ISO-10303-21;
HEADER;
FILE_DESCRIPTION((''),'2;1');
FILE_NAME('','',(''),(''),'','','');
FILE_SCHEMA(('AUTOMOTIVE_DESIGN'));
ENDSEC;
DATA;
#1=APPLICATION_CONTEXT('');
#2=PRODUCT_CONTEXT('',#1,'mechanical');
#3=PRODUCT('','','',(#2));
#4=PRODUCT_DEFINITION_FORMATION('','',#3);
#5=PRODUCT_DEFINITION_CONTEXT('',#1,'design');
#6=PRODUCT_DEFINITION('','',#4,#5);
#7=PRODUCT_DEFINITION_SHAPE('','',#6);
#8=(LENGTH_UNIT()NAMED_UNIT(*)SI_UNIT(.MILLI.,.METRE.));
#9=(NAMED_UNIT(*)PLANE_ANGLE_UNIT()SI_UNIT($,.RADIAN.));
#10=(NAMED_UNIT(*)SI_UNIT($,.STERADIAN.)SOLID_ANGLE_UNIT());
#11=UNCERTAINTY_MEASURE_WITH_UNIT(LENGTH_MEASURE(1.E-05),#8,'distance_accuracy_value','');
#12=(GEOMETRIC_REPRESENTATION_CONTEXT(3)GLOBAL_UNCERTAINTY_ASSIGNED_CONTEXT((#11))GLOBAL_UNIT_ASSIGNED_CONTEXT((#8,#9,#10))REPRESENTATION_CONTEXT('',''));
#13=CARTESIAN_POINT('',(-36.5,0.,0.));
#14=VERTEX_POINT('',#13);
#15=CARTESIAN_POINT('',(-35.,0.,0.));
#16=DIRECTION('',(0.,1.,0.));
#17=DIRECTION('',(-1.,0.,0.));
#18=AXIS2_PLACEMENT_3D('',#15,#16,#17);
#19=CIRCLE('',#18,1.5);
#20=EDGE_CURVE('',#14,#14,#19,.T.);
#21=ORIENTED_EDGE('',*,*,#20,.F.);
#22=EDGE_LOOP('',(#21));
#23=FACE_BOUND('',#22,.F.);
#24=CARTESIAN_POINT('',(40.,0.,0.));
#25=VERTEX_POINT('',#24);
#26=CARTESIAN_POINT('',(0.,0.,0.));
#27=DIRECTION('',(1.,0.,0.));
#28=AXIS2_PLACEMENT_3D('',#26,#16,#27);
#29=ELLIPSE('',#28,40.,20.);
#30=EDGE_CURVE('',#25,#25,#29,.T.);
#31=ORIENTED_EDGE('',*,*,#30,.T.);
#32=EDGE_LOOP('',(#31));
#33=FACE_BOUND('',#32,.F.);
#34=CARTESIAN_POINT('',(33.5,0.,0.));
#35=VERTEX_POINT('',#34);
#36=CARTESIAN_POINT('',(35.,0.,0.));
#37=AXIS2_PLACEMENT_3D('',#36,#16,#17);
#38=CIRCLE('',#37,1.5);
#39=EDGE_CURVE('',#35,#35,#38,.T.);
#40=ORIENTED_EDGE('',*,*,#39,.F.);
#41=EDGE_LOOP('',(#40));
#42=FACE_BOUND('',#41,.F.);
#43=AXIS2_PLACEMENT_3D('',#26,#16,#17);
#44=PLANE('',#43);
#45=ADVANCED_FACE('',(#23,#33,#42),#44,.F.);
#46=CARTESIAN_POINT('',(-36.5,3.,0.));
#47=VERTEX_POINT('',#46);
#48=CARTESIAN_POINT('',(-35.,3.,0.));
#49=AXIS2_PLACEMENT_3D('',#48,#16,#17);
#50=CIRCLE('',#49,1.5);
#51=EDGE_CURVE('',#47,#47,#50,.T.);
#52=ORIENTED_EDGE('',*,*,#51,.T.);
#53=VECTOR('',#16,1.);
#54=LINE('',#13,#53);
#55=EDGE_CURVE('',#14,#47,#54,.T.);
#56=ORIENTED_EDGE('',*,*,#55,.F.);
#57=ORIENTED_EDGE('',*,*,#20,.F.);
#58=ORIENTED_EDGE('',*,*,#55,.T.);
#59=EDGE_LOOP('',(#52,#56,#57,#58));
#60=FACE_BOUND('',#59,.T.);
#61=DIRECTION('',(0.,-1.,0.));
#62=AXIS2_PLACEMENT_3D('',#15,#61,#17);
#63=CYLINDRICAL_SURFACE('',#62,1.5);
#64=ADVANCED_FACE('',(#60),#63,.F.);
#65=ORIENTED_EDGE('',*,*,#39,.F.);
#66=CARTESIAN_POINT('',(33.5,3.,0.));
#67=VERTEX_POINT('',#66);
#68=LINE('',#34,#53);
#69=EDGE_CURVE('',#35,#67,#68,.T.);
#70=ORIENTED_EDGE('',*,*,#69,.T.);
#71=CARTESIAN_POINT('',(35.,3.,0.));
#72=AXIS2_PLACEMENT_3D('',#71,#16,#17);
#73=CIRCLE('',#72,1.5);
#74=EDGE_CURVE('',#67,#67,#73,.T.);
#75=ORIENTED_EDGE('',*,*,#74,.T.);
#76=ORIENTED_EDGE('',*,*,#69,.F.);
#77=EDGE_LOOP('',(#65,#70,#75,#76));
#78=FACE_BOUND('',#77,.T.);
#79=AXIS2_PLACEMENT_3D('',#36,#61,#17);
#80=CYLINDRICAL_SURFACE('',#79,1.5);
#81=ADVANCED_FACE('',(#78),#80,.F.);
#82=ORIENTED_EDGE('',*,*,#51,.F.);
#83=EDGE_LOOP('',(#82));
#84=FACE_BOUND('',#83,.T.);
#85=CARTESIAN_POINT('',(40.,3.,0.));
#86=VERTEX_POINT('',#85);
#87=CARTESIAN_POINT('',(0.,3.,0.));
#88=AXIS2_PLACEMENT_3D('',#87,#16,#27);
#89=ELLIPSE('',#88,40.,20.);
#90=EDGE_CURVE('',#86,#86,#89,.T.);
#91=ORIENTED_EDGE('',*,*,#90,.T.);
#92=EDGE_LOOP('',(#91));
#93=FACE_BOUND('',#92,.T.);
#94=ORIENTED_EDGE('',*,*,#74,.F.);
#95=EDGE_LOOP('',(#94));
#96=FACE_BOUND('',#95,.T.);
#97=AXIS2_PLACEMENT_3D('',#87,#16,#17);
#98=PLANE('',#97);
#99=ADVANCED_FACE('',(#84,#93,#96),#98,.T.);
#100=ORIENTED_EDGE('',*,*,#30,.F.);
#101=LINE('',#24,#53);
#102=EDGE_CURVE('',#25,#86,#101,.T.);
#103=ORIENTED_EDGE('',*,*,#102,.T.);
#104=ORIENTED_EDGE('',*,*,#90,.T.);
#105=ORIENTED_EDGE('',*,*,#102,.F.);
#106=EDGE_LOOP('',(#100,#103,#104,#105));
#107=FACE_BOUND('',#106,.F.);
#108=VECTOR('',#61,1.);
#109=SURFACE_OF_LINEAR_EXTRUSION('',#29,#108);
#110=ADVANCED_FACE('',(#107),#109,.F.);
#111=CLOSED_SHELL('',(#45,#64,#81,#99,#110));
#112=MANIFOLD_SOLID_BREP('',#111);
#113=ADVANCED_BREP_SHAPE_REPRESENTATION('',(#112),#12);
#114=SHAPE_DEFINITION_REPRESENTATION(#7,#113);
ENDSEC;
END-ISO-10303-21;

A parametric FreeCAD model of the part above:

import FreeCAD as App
import Part
import Sketcher
from FreeCAD import Vector
Q = App.Units.Quantity

doc = App.newDocument("Part")
body = doc.addObject("PartDesign::Body", "Body")

sketch1 = doc.addObject("Sketcher::SketchObject", "Sketch")
body.addObject(sketch1)
sketch1.AttachmentSupport = (doc.XZ_Plane, [""])
sketch1.MapMode = "FlatFace"
sketch1.addGeometry(Part.Ellipse(Vector(40, 0, 0), Vector(0, 20, 0), Vector(0, 0, 0)), False)
sketch1.addGeometry(Part.Circle(Vector(35, 0, 0), Vector(0, 0, 1), 1.5), False)
sketch1.addGeometry(Part.Circle(Vector(-35, 0, 0), Vector(0, 0, 1), 1.5), False)
sketch1.addConstraint(Sketcher.Constraint("Block", 0))
sketch1.addConstraint(Sketcher.Constraint("Equal", 1, 2))
sketch1.addConstraint(Sketcher.Constraint("Symmetric", 1, 3, 2, 3, -1, 1))
sketch1.addConstraint(Sketcher.Constraint("PointOnObject", 1, 3, -1))
sketch1.addConstraint(Sketcher.Constraint("Diameter", 1, Q("3 mm")))
sketch1.addConstraint(Sketcher.Constraint("DistanceX", -1, 1, 1, 3, Q("35 mm")))
pad1 = doc.addObject("PartDesign::Pad", "Pad")
body.addObject(pad1)
pad1.Profile = sketch1
pad1.Length = 3
pad1.Reversed = True

doc.recompute()
